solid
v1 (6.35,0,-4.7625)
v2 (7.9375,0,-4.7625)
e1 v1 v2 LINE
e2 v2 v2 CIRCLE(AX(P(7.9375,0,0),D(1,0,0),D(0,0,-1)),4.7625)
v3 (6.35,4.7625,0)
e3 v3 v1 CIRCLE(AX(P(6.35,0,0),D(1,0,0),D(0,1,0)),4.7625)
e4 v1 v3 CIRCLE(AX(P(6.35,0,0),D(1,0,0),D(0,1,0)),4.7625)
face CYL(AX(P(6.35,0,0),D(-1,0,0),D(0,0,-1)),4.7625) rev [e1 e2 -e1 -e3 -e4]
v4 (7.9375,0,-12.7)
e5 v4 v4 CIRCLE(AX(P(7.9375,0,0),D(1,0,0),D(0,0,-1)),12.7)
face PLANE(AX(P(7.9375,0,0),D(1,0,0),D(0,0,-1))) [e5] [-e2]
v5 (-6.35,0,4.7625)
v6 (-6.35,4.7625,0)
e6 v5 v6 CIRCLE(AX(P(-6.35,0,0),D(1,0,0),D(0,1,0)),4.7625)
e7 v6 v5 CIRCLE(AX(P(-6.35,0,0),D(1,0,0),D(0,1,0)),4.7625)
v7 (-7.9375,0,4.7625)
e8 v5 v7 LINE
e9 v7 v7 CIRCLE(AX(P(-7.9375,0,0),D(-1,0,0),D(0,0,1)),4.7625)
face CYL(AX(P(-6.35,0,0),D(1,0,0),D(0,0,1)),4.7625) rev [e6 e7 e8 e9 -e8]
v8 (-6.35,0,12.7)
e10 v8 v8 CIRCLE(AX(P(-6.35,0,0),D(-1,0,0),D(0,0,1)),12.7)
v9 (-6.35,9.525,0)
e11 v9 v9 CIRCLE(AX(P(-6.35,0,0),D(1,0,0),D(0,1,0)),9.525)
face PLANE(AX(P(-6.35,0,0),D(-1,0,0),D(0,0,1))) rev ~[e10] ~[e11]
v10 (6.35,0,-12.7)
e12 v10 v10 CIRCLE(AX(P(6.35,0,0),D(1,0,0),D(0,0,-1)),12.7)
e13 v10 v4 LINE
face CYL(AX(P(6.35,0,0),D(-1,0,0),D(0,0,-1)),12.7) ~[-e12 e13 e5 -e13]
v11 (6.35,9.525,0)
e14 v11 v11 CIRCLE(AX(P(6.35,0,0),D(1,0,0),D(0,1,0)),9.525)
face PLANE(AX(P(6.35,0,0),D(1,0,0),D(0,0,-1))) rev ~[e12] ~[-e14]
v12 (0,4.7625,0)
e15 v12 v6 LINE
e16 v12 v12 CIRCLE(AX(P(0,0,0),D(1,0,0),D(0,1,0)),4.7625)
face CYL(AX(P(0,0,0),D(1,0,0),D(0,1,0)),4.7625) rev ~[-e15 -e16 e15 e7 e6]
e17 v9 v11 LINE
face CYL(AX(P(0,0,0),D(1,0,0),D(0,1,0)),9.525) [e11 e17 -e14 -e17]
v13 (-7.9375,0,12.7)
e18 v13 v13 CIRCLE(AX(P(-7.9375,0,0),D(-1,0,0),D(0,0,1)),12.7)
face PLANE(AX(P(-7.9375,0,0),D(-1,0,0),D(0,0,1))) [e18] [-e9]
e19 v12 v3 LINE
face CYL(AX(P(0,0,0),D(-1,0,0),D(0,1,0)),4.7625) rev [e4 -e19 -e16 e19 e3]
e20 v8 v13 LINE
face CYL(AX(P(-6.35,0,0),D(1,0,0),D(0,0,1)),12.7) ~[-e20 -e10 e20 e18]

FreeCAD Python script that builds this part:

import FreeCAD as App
import Part
import Sketcher
from FreeCAD import Vector
Q = App.Units.Quantity

doc = App.newDocument("Part")
params = doc.addObject("Spreadsheet::Sheet", "Params")
for row, (alias, value) in enumerate([
    ("sketch1_diameter", "0.75 in"),
    ("sketch1_diameter2", "0.375 in"),
    ("pad1_length", "0.5 in"),
    ("sketch2_diameter", "1 in"),
    ("sketch2_diameter2", "0.375 in"),
    ("pad2_length", "0.0625 in"),
    ("sketch3_diameter", "1 in"),
    ("sketch3_diameter2", "0.375 in"),
    ("pad3_length", "0.0625 in"),
], start=1):
    params.set(f"A{row}", alias)
    params.set(f"B{row}", "=" + value)
    params.setAlias(f"B{row}", alias)

body = doc.addObject("PartDesign::Body", "Body")

sketch1 = body.newObject("Sketcher::SketchObject", "Sketch")
sketch1.AttachmentSupport = (doc.getObject("YZ_Plane"), [""])
sketch1.MapMode = "FlatFace"
sketch1.addGeometry([
    Part.Circle(Vector(0, 0, 0), Vector(0, 0, 1), 9.525),
    Part.Circle(Vector(0, 0, 0), Vector(0, 0, 1), 4.7625),
], False)
sketch1.addConstraint([
    Sketcher.Constraint("Coincident", 0, 3, -1, 1),
    Sketcher.Constraint("Coincident", 1, 3, -1, 1),
    Sketcher.Constraint("Diameter", 0, Q("0.75 in")),
    Sketcher.Constraint("Diameter", 1, Q("0.375 in")),
])
sketch1.setExpression("Constraints[2]", "Params.sketch1_diameter")
sketch1.setExpression("Constraints[3]", "Params.sketch1_diameter2")
pad1 = body.newObject("PartDesign::Pad", "Pad")
pad1.Profile = sketch1
pad1.setExpression("Length", "Params.pad1_length")
pad1.Midplane = True

sketch2 = body.newObject("Sketcher::SketchObject", "Sketch001")
sketch2.AttachmentSupport = (doc.getObject("YZ_Plane"), [""])
sketch2.MapMode = "FlatFace"
sketch2.AttachmentOffset = App.Placement(Vector(0, 0, 0.25 * 25.4), App.Rotation())
sketch2.addGeometry([
    Part.Circle(Vector(0, 0, 0), Vector(0, 0, 1), 12.7),
    Part.Circle(Vector(0, 0, 0), Vector(0, 0, 1), 4.7625),
], False)
sketch2.addConstraint([
    Sketcher.Constraint("Coincident", 0, 3, -1, 1),
    Sketcher.Constraint("Coincident", 1, 3, -1, 1),
    Sketcher.Constraint("Diameter", 0, Q("1 in")),
    Sketcher.Constraint("Diameter", 1, Q("0.375 in")),
])
sketch2.setExpression("Constraints[2]", "Params.sketch2_diameter")
sketch2.setExpression("Constraints[3]", "Params.sketch2_diameter2")
pad2 = body.newObject("PartDesign::Pad", "Pad001")
pad2.Profile = sketch2
pad2.setExpression("Length", "Params.pad2_length")

sketch3 = body.newObject("Sketcher::SketchObject", "Sketch002")
sketch3.AttachmentSupport = (doc.getObject("YZ_Plane"), [""])
sketch3.MapMode = "FlatFace"
sketch3.AttachmentOffset = App.Placement(Vector(0, 0, -0.25 * 25.4), App.Rotation())
sketch3.addGeometry([
    Part.Circle(Vector(0, 0, 0), Vector(0, 0, 1), 12.7),
    Part.Circle(Vector(0, 0, 0), Vector(0, 0, 1), 4.7625),
], False)
sketch3.addConstraint([
    Sketcher.Constraint("Coincident", 0, 3, -1, 1),
    Sketcher.Constraint("Coincident", 1, 3, -1, 1),
    Sketcher.Constraint("Diameter", 0, Q("1 in")),
    Sketcher.Constraint("Diameter", 1, Q("0.375 in")),
])
sketch3.setExpression("Constraints[2]", "Params.sketch3_diameter")
sketch3.setExpression("Constraints[3]", "Params.sketch3_diameter2")
pad3 = body.newObject("PartDesign::Pad", "Pad002")
pad3.Profile = sketch3
pad3.setExpression("Length", "Params.pad3_length")
pad3.Reversed = True

doc.recompute()
